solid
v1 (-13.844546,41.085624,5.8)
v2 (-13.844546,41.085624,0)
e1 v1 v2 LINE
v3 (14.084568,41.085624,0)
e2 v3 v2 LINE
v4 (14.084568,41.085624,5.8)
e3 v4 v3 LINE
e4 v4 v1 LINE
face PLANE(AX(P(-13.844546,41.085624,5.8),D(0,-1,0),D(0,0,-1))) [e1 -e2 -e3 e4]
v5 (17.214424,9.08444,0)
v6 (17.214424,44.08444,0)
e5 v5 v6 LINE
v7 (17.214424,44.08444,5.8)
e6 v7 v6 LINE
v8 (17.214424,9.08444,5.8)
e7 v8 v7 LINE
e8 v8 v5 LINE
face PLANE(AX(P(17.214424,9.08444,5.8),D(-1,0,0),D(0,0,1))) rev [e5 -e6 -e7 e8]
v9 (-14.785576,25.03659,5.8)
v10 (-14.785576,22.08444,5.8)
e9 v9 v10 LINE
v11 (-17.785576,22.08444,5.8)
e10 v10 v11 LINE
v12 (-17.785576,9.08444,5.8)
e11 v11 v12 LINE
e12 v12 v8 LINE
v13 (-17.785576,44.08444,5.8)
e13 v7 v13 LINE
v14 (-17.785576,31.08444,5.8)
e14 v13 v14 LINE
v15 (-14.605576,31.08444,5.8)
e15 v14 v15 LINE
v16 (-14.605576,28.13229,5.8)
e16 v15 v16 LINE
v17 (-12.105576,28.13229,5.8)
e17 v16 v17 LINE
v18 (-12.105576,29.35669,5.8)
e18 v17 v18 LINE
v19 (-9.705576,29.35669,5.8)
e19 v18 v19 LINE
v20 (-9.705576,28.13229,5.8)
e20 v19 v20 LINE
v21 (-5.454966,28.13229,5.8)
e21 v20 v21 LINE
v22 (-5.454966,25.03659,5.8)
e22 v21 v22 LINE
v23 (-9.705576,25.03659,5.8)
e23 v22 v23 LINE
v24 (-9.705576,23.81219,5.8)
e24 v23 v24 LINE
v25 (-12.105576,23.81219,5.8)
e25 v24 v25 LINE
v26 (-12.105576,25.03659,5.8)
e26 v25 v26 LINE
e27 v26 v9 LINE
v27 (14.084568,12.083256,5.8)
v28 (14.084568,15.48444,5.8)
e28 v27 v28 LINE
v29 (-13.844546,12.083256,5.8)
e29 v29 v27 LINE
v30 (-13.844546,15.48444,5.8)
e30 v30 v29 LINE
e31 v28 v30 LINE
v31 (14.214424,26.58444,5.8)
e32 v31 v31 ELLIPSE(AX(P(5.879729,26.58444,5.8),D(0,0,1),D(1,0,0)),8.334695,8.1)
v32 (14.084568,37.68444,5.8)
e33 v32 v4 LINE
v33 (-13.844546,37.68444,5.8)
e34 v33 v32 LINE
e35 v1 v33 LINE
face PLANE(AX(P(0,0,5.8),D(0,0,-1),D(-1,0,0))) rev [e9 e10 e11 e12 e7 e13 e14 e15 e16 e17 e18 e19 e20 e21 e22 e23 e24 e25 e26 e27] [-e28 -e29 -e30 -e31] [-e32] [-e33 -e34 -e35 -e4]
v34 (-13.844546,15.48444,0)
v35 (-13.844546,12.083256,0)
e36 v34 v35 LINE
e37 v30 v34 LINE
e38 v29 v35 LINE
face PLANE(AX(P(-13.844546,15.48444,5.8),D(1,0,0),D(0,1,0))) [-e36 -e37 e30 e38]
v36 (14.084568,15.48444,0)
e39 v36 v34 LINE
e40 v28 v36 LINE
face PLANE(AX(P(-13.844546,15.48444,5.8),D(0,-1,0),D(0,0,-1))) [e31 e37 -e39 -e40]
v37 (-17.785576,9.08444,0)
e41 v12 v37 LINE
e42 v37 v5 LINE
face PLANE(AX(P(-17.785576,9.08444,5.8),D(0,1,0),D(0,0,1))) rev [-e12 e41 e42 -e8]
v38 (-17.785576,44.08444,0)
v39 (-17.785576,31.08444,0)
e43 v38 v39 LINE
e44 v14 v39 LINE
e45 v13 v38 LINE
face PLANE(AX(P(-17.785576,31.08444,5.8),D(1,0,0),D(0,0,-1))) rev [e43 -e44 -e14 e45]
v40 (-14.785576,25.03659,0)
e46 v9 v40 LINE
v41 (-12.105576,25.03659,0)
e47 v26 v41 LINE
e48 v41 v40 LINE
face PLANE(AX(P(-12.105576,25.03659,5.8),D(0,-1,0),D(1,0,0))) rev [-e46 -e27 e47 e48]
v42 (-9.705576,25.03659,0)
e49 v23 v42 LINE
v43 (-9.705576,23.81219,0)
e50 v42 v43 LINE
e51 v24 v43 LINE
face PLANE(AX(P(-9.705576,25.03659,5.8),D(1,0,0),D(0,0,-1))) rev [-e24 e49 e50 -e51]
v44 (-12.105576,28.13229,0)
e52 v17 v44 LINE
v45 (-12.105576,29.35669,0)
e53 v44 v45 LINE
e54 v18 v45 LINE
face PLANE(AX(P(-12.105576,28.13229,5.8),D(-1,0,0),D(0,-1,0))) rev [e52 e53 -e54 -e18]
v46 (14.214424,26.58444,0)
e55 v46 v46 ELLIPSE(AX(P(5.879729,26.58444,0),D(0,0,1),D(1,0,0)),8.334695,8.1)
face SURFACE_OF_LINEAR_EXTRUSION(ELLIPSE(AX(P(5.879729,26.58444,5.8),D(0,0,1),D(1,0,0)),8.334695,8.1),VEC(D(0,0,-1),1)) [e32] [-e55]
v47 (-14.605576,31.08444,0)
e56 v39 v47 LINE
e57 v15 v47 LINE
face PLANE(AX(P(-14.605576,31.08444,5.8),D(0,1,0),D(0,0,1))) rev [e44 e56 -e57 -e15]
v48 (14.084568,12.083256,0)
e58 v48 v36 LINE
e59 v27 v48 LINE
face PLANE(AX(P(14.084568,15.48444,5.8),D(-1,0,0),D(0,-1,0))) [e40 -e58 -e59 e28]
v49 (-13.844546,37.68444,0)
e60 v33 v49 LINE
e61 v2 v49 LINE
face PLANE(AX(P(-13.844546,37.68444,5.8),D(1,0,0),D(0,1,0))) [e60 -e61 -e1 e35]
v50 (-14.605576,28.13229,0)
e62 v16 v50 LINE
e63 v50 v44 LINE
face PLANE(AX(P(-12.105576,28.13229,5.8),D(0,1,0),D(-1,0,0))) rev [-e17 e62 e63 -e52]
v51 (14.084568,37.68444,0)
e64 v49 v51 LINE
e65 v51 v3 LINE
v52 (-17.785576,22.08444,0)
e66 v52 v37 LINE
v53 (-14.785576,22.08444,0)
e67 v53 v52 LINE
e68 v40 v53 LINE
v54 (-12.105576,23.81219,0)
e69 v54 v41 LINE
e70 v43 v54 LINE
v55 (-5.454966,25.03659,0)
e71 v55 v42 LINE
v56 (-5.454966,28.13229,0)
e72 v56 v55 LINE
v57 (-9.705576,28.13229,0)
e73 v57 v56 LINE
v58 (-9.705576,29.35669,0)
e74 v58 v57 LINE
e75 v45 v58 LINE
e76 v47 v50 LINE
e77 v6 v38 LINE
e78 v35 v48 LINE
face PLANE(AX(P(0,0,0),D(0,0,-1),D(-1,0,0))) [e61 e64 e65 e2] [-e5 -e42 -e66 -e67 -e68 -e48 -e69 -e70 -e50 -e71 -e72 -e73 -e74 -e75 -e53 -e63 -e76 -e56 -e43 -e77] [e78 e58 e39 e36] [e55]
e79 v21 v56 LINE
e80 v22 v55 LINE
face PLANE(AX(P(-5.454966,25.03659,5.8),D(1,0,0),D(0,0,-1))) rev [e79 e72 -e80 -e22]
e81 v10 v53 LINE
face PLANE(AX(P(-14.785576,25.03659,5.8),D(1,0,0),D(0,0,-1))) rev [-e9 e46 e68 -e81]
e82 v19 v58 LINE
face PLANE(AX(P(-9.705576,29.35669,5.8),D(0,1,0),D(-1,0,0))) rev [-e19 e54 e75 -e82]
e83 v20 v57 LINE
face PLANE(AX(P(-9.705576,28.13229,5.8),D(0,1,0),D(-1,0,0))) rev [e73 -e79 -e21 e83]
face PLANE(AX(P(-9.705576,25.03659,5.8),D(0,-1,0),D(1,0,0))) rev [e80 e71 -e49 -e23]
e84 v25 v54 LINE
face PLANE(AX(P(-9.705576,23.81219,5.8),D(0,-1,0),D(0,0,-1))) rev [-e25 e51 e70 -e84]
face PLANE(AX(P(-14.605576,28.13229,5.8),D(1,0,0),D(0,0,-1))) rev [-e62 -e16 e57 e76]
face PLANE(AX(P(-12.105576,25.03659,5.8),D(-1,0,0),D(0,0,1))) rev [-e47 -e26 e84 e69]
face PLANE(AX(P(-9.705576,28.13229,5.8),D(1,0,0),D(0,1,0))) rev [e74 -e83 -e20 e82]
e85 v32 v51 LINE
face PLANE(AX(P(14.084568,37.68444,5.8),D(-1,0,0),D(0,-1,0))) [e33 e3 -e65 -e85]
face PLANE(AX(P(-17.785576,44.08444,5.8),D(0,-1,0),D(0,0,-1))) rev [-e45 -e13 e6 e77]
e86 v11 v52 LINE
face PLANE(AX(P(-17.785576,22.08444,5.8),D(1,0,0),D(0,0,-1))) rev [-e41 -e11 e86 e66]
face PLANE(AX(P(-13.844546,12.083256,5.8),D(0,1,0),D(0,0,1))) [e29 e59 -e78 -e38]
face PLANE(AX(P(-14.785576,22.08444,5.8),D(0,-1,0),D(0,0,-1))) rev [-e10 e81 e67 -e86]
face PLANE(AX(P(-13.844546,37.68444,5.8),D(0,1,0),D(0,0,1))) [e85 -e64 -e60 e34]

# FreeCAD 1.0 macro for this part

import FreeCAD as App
import Part
import Sketcher
Q = App.Units.Quantity

doc = App.newDocument("Part")
params = doc.addObject("Spreadsheet::Sheet", "Params")
for row, (alias, value) in enumerate([
    ("sketch1_width", "3 mm"),
    ("sketch1_width2", "35 mm"),
    ("sketch1_height", "13 mm"),
    ("sketch1_width3", "2.4 mm"),
    ("sketch1_width4", "2.5 mm"),
    ("pad1_length", "5.8 mm"),
], start=1):
    params.set(f"A{row}", alias)
    params.set(f"B{row}", "=" + value)
    params.setAlias(f"B{row}", alias)

body = doc.addObject("PartDesign::Body", "Body")

# Sketch on XY plane
sketch1 = body.newObject("Sketcher::SketchObject", "Sketch")
sketch1.AttachmentSupport = (doc.getObject("XY_Plane"), [""])
sketch1.MapMode = "FlatFace"
sketch1.addGeometry(Part.LineSegment(App.Vector(-5.454966, 28.13229, 0), App.Vector(-5.454966, 25.03659, 0)), False)
sketch1.addGeometry(Part.LineSegment(App.Vector(-5.454966, 25.03659, 0), App.Vector(-9.705576, 25.03659, 0)), False)
sketch1.addGeometry(Part.LineSegment(App.Vector(-9.705576, 25.03659, 0), App.Vector(-9.705576, 23.81219, 0)), False)
sketch1.addGeometry(Part.LineSegment(App.Vector(-9.705576, 23.81219, 0), App.Vector(-12.105576, 23.81219, 0)), False)
sketch1.addGeometry(Part.LineSegment(App.Vector(-12.105576, 23.81219, 0), App.Vector(-12.105576, 25.03659, 0)), False)
sketch1.addGeometry(Part.LineSegment(App.Vector(-12.105576, 25.03659, 0), App.Vector(-14.785576, 25.03659, 0)), False)
sketch1.addGeometry(Part.LineSegment(App.Vector(-14.785576, 25.03659, 0), App.Vector(-14.785576, 22.08444, 0)), False)
sketch1.addGeometry(Part.LineSegment(App.Vector(-14.785576, 22.08444, 0), App.Vector(-17.785576, 22.08444, 0)), False)
sketch1.addGeometry(Part.LineSegment(App.Vector(-17.785576, 22.08444, 0), App.Vector(-17.785576, 9.08444, 0)), False)
sketch1.addGeometry(Part.LineSegment(App.Vector(-17.785576, 9.08444, 0), App.Vector(17.214424, 9.08444, 0)), False)
sketch1.addGeometry(Part.LineSegment(App.Vector(17.214424, 9.08444, 0), App.Vector(17.214424, 44.08444, 0)), False)
sketch1.addGeometry(Part.LineSegment(App.Vector(17.214424, 44.08444, 0), App.Vector(-17.785576, 44.08444, 0)), False)
sketch1.addGeometry(Part.LineSegment(App.Vector(-17.785576, 44.08444, 0), App.Vector(-17.785576, 31.08444, 0)), False)
sketch1.addGeometry(Part.LineSegment(App.Vector(-17.785576, 31.08444, 0), App.Vector(-14.605576, 31.08444, 0)), False)
sketch1.addGeometry(Part.LineSegment(App.Vector(-14.605576, 31.08444, 0), App.Vector(-14.605576, 28.13229, 0)), False)
sketch1.addGeometry(Part.LineSegment(App.Vector(-14.605576, 28.13229, 0), App.Vector(-12.105576, 28.13229, 0)), False)
sketch1.addGeometry(Part.LineSegment(App.Vector(-12.105576, 28.13229, 0), App.Vector(-12.105576, 29.35669, 0)), False)
sketch1.addGeometry(Part.LineSegment(App.Vector(-12.105576, 29.35669, 0), App.Vector(-9.705576, 29.35669, 0)), False)
sketch1.addGeometry(Part.LineSegment(App.Vector(-9.705576, 29.35669, 0), App.Vector(-9.705576, 28.13229, 0)), False)
sketch1.addGeometry(Part.LineSegment(App.Vector(-9.705576, 28.13229, 0), App.Vector(-5.454966, 28.13229, 0)), False)
sketch1.addGeometry(Part.Ellipse(App.Vector(14.214424, 26.58444, 0), App.Vector(5.879729, 34.68444, 0), App.Vector(5.879729, 26.58444, 0)), False)
sketch1.addGeometry(Part.LineSegment(App.Vector(-13.844546, 12.083256, 0), App.Vector(-13.844546, 15.48444, 0)), False)
sketch1.addGeometry(Part.LineSegment(App.Vector(-13.844546, 15.48444, 0), App.Vector(14.084568, 15.48444, 0)), False)
sketch1.addGeometry(Part.LineSegment(App.Vector(14.084568, 15.48444, 0), App.Vector(14.084568, 12.083256, 0)), False)
sketch1.addGeometry(Part.LineSegment(App.Vector(14.084568, 12.083256, 0), App.Vector(-13.844546, 12.083256, 0)), False)
sketch1.addGeometry(Part.LineSegment(App.Vector(-13.844546, 37.68444, 0), App.Vector(-13.844546, 41.085624, 0)), False)
sketch1.addGeometry(Part.LineSegment(App.Vector(-13.844546, 41.085624, 0), App.Vector(14.084568, 41.085624, 0)), False)
sketch1.addGeometry(Part.LineSegment(App.Vector(14.084568, 41.085624, 0), App.Vector(14.084568, 37.68444, 0)), False)
sketch1.addGeometry(Part.LineSegment(App.Vector(14.084568, 37.68444, 0), App.Vector(-13.844546, 37.68444, 0)), False)
sketch1.addConstraint(Sketcher.Constraint("Block", 20))
sketch1.addConstraint(Sketcher.Constraint("Coincident", 0, 2, 1, 1))
sketch1.addConstraint(Sketcher.Constraint("Coincident", 1, 2, 2, 1))
sketch1.addConstraint(Sketcher.Constraint("Coincident", 2, 2, 3, 1))
sketch1.addConstraint(Sketcher.Constraint("Coincident", 3, 2, 4, 1))
sketch1.addConstraint(Sketcher.Constraint("Coincident", 4, 2, 5, 1))
sketch1.addConstraint(Sketcher.Constraint("Coincident", 5, 2, 6, 1))
sketch1.addConstraint(Sketcher.Constraint("Coincident", 6, 2, 7, 1))
sketch1.addConstraint(Sketcher.Constraint("Coincident", 7, 2, 8, 1))
sketch1.addConstraint(Sketcher.Constraint("Coincident", 8, 2, 9, 1))
sketch1.addConstraint(Sketcher.Constraint("Coincident", 9, 2, 10, 1))
sketch1.addConstraint(Sketcher.Constraint("Coincident", 10, 2, 11, 1))
sketch1.addConstraint(Sketcher.Constraint("Coincident", 11, 2, 12, 1))
sketch1.addConstraint(Sketcher.Constraint("Coincident", 12, 2, 13, 1))
sketch1.addConstraint(Sketcher.Constraint("Coincident", 13, 2, 14, 1))
sketch1.addConstraint(Sketcher.Constraint("Coincident", 14, 2, 15, 1))
sketch1.addConstraint(Sketcher.Constraint("Coincident", 15, 2, 16, 1))
sketch1.addConstraint(Sketcher.Constraint("Coincident", 16, 2, 17, 1))
sketch1.addConstraint(Sketcher.Constraint("Coincident", 17, 2, 18, 1))
sketch1.addConstraint(Sketcher.Constraint("Coincident", 18, 2, 19, 1))
sketch1.addConstraint(Sketcher.Constraint("Coincident", 19, 2, 0, 1))
sketch1.addConstraint(Sketcher.Constraint("Coincident", 21, 2, 22, 1))
sketch1.addConstraint(Sketcher.Constraint("Coincident", 22, 2, 23, 1))
sketch1.addConstraint(Sketcher.Constraint("Coincident", 23, 2, 24, 1))
sketch1.addConstraint(Sketcher.Constraint("Coincident", 24, 2, 21, 1))
sketch1.addConstraint(Sketcher.Constraint("Coincident", 25, 2, 26, 1))
sketch1.addConstraint(Sketcher.Constraint("Coincident", 26, 2, 27, 1))
sketch1.addConstraint(Sketcher.Constraint("Coincident", 27, 2, 28, 1))
sketch1.addConstraint(Sketcher.Constraint("Coincident", 28, 2, 25, 1))
sketch1.addConstraint(Sketcher.Constraint("Vertical", 0))
sketch1.addConstraint(Sketcher.Constraint("Horizontal", 1))
sketch1.addConstraint(Sketcher.Constraint("Vertical", 2))
sketch1.addConstraint(Sketcher.Constraint("Horizontal", 3))
sketch1.addConstraint(Sketcher.Constraint("Vertical", 4))
sketch1.addConstraint(Sketcher.Constraint("Horizontal", 5))
sketch1.addConstraint(Sketcher.Constraint("Vertical", 6))
sketch1.addConstraint(Sketcher.Constraint("Horizontal", 7))
sketch1.addConstraint(Sketcher.Constraint("Vertical", 8))
sketch1.addConstraint(Sketcher.Constraint("Horizontal", 9))
sketch1.addConstraint(Sketcher.Constraint("Vertical", 10))
sketch1.addConstraint(Sketcher.Constraint("Horizontal", 11))
sketch1.addConstraint(Sketcher.Constraint("Vertical", 12))
sketch1.addConstraint(Sketcher.Constraint("Horizontal", 13))
sketch1.addConstraint(Sketcher.Constraint("Vertical", 14))
sketch1.addConstraint(Sketcher.Constraint("Horizontal", 15))
sketch1.addConstraint(Sketcher.Constraint("Vertical", 16))
sketch1.addConstraint(Sketcher.Constraint("Horizontal", 17))
sketch1.addConstraint(Sketcher.Constraint("Vertical", 18))
sketch1.addConstraint(Sketcher.Constraint("Horizontal", 19))
sketch1.addConstraint(Sketcher.Constraint("Vertical", 21))
sketch1.addConstraint(Sketcher.Constraint("Horizontal", 22))
sketch1.addConstraint(Sketcher.Constraint("Vertical", 23))
sketch1.addConstraint(Sketcher.Constraint("Horizontal", 24))
sketch1.addConstraint(Sketcher.Constraint("Vertical", 25))
sketch1.addConstraint(Sketcher.Constraint("Horizontal", 26))
sketch1.addConstraint(Sketcher.Constraint("Vertical", 27))
sketch1.addConstraint(Sketcher.Constraint("Horizontal", 28))
sketch1.addConstraint(Sketcher.Constraint("Horizontal", 1, 2, 4, 2))
sketch1.addConstraint(Sketcher.Constraint("Horizontal", 15, 2, 18, 2))
sketch1.addConstraint(Sketcher.Constraint("Vertical", 8, 2, 11, 2))
sketch1.addConstraint(Sketcher.Constraint("Vertical", 4, 2, 15, 2))
sketch1.addConstraint(Sketcher.Constraint("Vertical", 2, 2, 17, 2))
sketch1.addConstraint(Sketcher.Constraint("Vertical", 24, 2, 25, 2))
sketch1.addConstraint(Sketcher.Constraint("Vertical", 23, 2, 26, 2))
sketch1.addConstraint(Sketcher.Constraint("Equal", 11, 10))
sketch1.addConstraint(Sketcher.Constraint("Equal", 8, 12))
sketch1.addConstraint(Sketcher.Constraint("Equal", 6, 14))
sketch1.addConstraint(Sketcher.Constraint("Equal", 4, 16))
sketch1.addConstraint(Sketcher.Constraint("Equal", 23, 25))
sketch1.addConstraint(Sketcher.Constraint("DistanceX", 7, 2, 7, 1, Q("3 mm")))
sketch1.addConstraint(Sketcher.Constraint("DistanceX", 9, 1, 9, 2, Q("35 mm")))
sketch1.addConstraint(Sketcher.Constraint("DistanceY", 8, 2, 8, 1, Q("13 mm")))
sketch1.addConstraint(Sketcher.Constraint("DistanceX", 3, 2, 3, 1, Q("2.4 mm")))
sketch1.addConstraint(Sketcher.Constraint("DistanceX", 15, 1, 15, 2, Q("2.5 mm")))
sketch1.addConstraint(Sketcher.Constraint("DistanceX", 5, 2, 5, 1, Q("2.68 mm")))
sketch1.addConstraint(Sketcher.Constraint("DistanceY", 21, 2, 6, 2, Q("6.6 mm")))
sketch1.addConstraint(Sketcher.Constraint("DistanceY", 27, 2, 10, 2, Q("6.4 mm")))
sketch1.addConstraint(Sketcher.Constraint("DistanceY", 0, 2, 0, 1, Q("3.0957 mm")))
sketch1.addConstraint(Sketcher.Constraint("DistanceY", 2, 2, 2, 1, Q("1.2244 mm")))
sketch1.addConstraint(Sketcher.Constraint("DistanceX", 1, 2, 1, 1, Q("4.25061 mm")))
sketch1.addConstraint(Sketcher.Constraint("DistanceX", 22, 1, 22, 2, Q("27.929114 mm")))
sketch1.addConstraint(Sketcher.Constraint("DistanceY", 21, 1, 21, 2, Q("3.401184 mm")))
sketch1.addConstraint(Sketcher.Constraint("DistanceY", -1, 1, 0, 2, Q("25.03659 mm")))
sketch1.addConstraint(Sketcher.Constraint("DistanceX", -1, 1, 22, 2, Q("14.084568 mm")))
sketch1.addConstraint(Sketcher.Constraint("DistanceX", 6, 2, 21, 2, Q("0.94103 mm")))
sketch1.setExpression("Constraints[69]", "Params.sketch1_width")
sketch1.setExpression("Constraints[70]", "Params.sketch1_width2")
sketch1.setExpression("Constraints[71]", "Params.sketch1_height")
sketch1.setExpression("Constraints[72]", "Params.sketch1_width3")
sketch1.setExpression("Constraints[73]", "Params.sketch1_width4")
pad1 = body.newObject("PartDesign::Pad", "Pad")
pad1.Profile = sketch1
pad1.setExpression("Length", "Params.pad1_length")

doc.recompute()
